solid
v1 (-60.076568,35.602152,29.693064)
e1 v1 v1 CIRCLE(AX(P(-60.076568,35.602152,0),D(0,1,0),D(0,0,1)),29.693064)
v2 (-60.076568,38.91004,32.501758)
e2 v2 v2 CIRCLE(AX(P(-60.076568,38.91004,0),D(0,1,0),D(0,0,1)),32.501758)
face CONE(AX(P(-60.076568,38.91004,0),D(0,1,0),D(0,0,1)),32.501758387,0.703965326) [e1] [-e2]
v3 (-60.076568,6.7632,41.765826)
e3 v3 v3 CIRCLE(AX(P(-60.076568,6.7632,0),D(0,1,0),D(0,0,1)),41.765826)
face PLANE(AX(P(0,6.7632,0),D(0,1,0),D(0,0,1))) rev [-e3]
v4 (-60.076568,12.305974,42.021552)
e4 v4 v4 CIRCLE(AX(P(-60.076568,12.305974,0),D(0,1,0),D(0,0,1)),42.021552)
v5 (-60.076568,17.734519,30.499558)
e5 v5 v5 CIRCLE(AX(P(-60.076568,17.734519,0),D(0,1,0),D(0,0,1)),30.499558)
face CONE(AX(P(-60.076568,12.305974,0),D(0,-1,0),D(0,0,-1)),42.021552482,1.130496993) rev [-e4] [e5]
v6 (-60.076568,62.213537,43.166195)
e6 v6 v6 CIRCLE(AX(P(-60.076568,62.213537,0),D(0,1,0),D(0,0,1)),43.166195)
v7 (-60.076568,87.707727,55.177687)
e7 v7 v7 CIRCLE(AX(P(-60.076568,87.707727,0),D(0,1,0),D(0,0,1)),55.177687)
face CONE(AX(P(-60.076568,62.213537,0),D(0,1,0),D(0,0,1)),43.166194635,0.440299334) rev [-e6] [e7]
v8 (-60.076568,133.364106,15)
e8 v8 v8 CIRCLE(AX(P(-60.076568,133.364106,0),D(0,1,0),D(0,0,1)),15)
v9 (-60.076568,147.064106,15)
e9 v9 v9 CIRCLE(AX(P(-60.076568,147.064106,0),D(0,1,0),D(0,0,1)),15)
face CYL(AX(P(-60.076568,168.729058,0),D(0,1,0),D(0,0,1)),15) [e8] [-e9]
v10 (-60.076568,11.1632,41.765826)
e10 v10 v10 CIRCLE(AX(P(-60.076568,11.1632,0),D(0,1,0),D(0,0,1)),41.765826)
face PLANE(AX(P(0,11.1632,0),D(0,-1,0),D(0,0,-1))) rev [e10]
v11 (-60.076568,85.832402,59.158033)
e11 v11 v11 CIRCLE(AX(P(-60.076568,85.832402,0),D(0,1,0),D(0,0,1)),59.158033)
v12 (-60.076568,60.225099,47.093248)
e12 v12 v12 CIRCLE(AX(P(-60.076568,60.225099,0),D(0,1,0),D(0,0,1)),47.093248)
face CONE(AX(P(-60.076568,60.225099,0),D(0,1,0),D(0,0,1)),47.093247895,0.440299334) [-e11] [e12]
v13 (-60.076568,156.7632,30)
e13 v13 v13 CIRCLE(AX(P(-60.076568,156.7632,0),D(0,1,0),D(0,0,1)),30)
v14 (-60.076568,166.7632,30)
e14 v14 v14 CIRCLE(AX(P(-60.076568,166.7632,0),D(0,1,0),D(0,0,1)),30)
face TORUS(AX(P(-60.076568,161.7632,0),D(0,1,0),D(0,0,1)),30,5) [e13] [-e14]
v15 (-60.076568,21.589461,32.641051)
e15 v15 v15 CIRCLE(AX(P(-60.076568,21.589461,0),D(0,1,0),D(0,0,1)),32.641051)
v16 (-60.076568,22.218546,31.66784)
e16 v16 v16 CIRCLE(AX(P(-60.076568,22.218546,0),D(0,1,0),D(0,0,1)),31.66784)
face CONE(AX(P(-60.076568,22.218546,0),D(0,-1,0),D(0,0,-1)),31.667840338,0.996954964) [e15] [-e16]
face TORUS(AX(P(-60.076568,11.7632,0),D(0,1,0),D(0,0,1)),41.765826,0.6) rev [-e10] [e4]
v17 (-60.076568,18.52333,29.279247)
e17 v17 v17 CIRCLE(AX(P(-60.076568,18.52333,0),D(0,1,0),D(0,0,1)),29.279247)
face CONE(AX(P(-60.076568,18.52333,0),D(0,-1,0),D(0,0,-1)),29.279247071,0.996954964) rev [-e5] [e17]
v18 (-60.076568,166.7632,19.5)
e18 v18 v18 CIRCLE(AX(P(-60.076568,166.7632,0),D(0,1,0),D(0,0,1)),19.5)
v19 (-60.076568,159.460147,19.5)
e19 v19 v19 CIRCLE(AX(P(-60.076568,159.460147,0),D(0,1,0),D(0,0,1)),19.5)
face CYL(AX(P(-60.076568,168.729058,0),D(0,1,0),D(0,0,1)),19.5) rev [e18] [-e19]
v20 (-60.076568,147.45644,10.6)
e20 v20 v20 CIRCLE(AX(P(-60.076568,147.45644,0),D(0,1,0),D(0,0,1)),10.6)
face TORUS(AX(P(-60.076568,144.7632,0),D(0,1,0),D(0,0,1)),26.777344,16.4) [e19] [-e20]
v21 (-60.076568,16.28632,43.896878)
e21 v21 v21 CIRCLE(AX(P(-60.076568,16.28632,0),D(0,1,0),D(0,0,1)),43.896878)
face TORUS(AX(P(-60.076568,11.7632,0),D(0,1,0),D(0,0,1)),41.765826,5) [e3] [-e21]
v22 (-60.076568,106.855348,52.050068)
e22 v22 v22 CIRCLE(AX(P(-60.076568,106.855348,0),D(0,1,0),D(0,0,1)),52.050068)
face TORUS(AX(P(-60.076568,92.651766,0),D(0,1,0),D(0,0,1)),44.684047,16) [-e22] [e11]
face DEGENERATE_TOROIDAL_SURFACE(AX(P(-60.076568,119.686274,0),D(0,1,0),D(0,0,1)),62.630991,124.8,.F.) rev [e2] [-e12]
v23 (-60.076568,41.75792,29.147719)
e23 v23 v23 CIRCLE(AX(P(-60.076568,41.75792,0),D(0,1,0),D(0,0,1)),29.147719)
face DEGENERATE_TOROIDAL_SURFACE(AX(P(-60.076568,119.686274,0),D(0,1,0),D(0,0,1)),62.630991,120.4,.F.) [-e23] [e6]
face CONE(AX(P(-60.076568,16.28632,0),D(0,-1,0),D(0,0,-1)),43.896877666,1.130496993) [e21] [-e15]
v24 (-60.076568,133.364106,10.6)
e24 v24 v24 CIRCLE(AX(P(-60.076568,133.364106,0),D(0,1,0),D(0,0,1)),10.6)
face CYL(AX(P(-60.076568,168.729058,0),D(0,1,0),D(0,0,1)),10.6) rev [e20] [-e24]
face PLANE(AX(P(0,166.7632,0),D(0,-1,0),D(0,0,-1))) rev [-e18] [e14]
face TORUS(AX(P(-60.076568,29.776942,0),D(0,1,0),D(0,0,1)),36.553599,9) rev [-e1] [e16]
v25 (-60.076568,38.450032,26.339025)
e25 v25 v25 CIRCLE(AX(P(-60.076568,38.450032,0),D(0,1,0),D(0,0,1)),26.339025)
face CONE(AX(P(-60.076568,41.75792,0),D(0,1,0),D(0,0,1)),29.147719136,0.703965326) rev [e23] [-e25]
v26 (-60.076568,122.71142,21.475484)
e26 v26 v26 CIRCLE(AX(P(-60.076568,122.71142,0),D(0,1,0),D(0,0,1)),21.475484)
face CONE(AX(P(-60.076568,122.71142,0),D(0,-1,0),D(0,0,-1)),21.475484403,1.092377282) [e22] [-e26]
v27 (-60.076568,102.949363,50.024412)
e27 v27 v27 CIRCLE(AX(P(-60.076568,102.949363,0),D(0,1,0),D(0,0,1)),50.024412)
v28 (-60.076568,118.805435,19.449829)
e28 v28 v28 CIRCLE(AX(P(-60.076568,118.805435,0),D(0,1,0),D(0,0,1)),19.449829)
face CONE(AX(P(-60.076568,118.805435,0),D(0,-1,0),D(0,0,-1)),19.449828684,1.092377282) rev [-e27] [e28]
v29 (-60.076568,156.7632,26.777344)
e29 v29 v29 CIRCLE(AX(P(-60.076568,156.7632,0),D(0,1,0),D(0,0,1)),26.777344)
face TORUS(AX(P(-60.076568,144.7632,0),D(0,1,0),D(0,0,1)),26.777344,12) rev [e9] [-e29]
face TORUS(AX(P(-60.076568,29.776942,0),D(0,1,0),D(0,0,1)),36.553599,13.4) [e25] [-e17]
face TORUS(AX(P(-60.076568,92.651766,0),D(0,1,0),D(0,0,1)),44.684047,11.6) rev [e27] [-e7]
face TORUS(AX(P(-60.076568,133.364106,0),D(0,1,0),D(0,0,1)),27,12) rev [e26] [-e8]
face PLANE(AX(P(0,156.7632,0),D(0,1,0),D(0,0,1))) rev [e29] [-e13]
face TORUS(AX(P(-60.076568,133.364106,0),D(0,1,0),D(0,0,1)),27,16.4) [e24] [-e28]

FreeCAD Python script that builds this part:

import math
import FreeCAD as App
import Part
import Sketcher
Q = App.Units.Quantity

doc = App.newDocument("Part")
body = doc.addObject("PartDesign::Body", "Body")

# Sketch on XY plane
sketch1 = body.newObject("Sketcher::SketchObject", "Sketch")
sketch1.AttachmentSupport = (doc.getObject("XY_Plane"), [""])
sketch1.MapMode = "FlatFace"
sketch1.addGeometry(Part.LineSegment(App.Vector(-60.1, 6.8, 0), App.Vector(-60.1, 11.2, 0)), False)
sketch1.addGeometry(Part.LineSegment(App.Vector(-60.1, 11.2, 0), App.Vector(-101.8, 11.2, 0)), False)
sketch1.addGeometry(Part.ArcOfCircle(Part.Circle(App.Vector(-101.8, 11.8, 0), App.Vector(0, 0, 1), 0.6), math.radians(115), math.radians(270)), False)
sketch1.addGeometry(Part.LineSegment(App.Vector(-102.1, 12.3, 0), App.Vector(-90.6, 17.7, 0)), False)
sketch1.addGeometry(Part.LineSegment(App.Vector(-90.6, 17.7, 0), App.Vector(-89.4, 18.5, 0)), False)
sketch1.addGeometry(Part.ArcOfCircle(Part.Circle(App.Vector(-96.6, 29.8, 0), App.Vector(0, 0, 1), 13.4), math.radians(-57), math.radians(40)), False)
sketch1.addGeometry(Part.LineSegment(App.Vector(-86.4, 38.5, 0), App.Vector(-89.2, 41.8, 0)), False)
sketch1.addGeometry(Part.ArcOfCircle(Part.Circle(App.Vector(2.6, 119.7, 0), App.Vector(0, 0, 1), 120.4), math.radians(-151.49), math.radians(-139.67)), False)
sketch1.addGeometry(Part.LineSegment(App.Vector(-103.2, 62.2, 0), App.Vector(-115.3, 87.7, 0)), False)
sketch1.addGeometry(Part.ArcOfCircle(Part.Circle(App.Vector(-104.8, 92.7, 0), App.Vector(0, 0, 1), 11.6), math.radians(117), math.radians(205)), False)
sketch1.addGeometry(Part.LineSegment(App.Vector(-110.1, 102.9, 0), App.Vector(-79.5, 118.8, 0)), False)
sketch1.addGeometry(Part.ArcOfCircle(Part.Circle(App.Vector(-87.1, 133.4, 0), App.Vector(0, 0, 1), 16.4), math.radians(-63), math.radians(0)), False)
sketch1.addGeometry(Part.LineSegment(App.Vector(-70.7, 133.4, 0), App.Vector(-70.7, 147.5, 0)), False)
sketch1.addGeometry(Part.ArcOfCircle(Part.Circle(App.Vector(-86.9, 144.8, 0), App.Vector(0, 0, 1), 16.4), math.radians(9), math.radians(64)), False)
sketch1.addGeometry(Part.LineSegment(App.Vector(-79.6, 159.5, 0), App.Vector(-79.6, 166.8, 0)), False)
sketch1.addGeometry(Part.LineSegment(App.Vector(-79.6, 166.8, 0), App.Vector(-90.1, 166.8, 0)), False)
sketch1.addGeometry(Part.ArcOfCircle(Part.Circle(App.Vector(-90.1, 161.8, 0), App.Vector(0, 0, 1), 5), math.radians(90), math.radians(270)), False)
sketch1.addGeometry(Part.LineSegment(App.Vector(-90.1, 156.8, 0), App.Vector(-86.9, 156.8, 0)), False)
sketch1.addGeometry(Part.ArcOfCircle(Part.Circle(App.Vector(-86.9, 144.8, 0), App.Vector(0, 0, 1), 12), math.radians(11), math.radians(90)), False)
sketch1.addGeometry(Part.LineSegment(App.Vector(-75.1, 147.1, 0), App.Vector(-75.1, 133.4, 0)), False)
sketch1.addGeometry(Part.ArcOfCircle(Part.Circle(App.Vector(-87.1, 133.4, 0), App.Vector(0, 0, 1), 12), math.radians(-63), math.radians(0)), False)
sketch1.addGeometry(Part.LineSegment(App.Vector(-81.6, 122.7, 0), App.Vector(-112.1, 106.9, 0)), False)
sketch1.addGeometry(Part.ArcOfCircle(Part.Circle(App.Vector(-104.8, 92.7, 0), App.Vector(0, 0, 1), 16), math.radians(117), math.radians(205)), False)
sketch1.addGeometry(Part.LineSegment(App.Vector(-119.2, 85.8, 0), App.Vector(-107.2, 60.2, 0)), False)
sketch1.addGeometry(Part.ArcOfCircle(Part.Circle(App.Vector(2.6, 119.7, 0), App.Vector(0, 0, 1), 124.8), math.radians(-151.55), math.radians(-139.67)), False)
sketch1.addGeometry(Part.LineSegment(App.Vector(-92.6, 38.9, 0), App.Vector(-89.8, 35.6, 0)), False)
sketch1.addGeometry(Part.ArcOfCircle(Part.Circle(App.Vector(-96.6, 29.8, 0), App.Vector(0, 0, 1), 9), math.radians(-57), math.radians(40)), False)
sketch1.addGeometry(Part.LineSegment(App.Vector(-91.7, 22.2, 0), App.Vector(-92.7, 21.6, 0)), False)
sketch1.addGeometry(Part.LineSegment(App.Vector(-92.7, 21.6, 0), App.Vector(-104, 16.3, 0)), False)
sketch1.addGeometry(Part.ArcOfCircle(Part.Circle(App.Vector(-101.8, 11.8, 0), App.Vector(0, 0, 1), 5), math.radians(115), math.radians(270)), False)
sketch1.addGeometry(Part.LineSegment(App.Vector(-101.8, 6.8, 0), App.Vector(-60.1, 6.8, 0)), False)
sketch1.addGeometry(Part.LineSegment(App.Vector(-60.1, 166.8, 0), App.Vector(-60.1, 6.8, 0)), True)  # axis
sketch1.addConstraint(Sketcher.Constraint("Coincident", 0, 2, 1, 1))
sketch1.addConstraint(Sketcher.Constraint("Tangent", 1, 2, 2, 2))
sketch1.addConstraint(Sketcher.Constraint("Tangent", 2, 1, 3, 1))
sketch1.addConstraint(Sketcher.Constraint("Coincident", 3, 2, 4, 1))
sketch1.addConstraint(Sketcher.Constraint("Tangent", 4, 2, 5, 1))
sketch1.addConstraint(Sketcher.Constraint("Tangent", 5, 2, 6, 1))
sketch1.addConstraint(Sketcher.Constraint("Tangent", 6, 2, 7, 2))
sketch1.addConstraint(Sketcher.Constraint("Coincident", 7, 1, 8, 1))
sketch1.addConstraint(Sketcher.Constraint("Tangent", 8, 2, 9, 2))
sketch1.addConstraint(Sketcher.Constraint("Tangent", 9, 1, 10, 1))
sketch1.addConstraint(Sketcher.Constraint("Tangent", 10, 2, 11, 1))
sketch1.addConstraint(Sketcher.Constraint("Tangent", 11, 2, 12, 1))
sketch1.addConstraint(Sketcher.Constraint("Coincident", 12, 2, 13, 1))
sketch1.addConstraint(Sketcher.Constraint("Coincident", 13, 2, 14, 1))
sketch1.addConstraint(Sketcher.Constraint("Coincident", 14, 2, 15, 1))
sketch1.addConstraint(Sketcher.Constraint("Tangent", 15, 2, 16, 1))
sketch1.addConstraint(Sketcher.Constraint("Tangent", 16, 2, 17, 1))
sketch1.addConstraint(Sketcher.Constraint("Tangent", 17, 2, 18, 2))
sketch1.addConstraint(Sketcher.Constraint("Coincident", 18, 1, 19, 1))
sketch1.addConstraint(Sketcher.Constraint("Tangent", 19, 2, 20, 2))
sketch1.addConstraint(Sketcher.Constraint("Tangent", 20, 1, 21, 1))
sketch1.addConstraint(Sketcher.Constraint("Tangent", 21, 2, 22, 1))
sketch1.addConstraint(Sketcher.Constraint("Tangent", 22, 2, 23, 1))
sketch1.addConstraint(Sketcher.Constraint("Coincident", 23, 2, 24, 1))
sketch1.addConstraint(Sketcher.Constraint("Tangent", 24, 2, 25, 1))
sketch1.addConstraint(Sketcher.Constraint("Tangent", 25, 2, 26, 2))
sketch1.addConstraint(Sketcher.Constraint("Tangent", 26, 1, 27, 1))
sketch1.addConstraint(Sketcher.Constraint("Coincident", 27, 2, 28, 1))
sketch1.addConstraint(Sketcher.Constraint("Tangent", 28, 2, 29, 1))
sketch1.addConstraint(Sketcher.Constraint("Tangent", 29, 2, 30, 1))
sketch1.addConstraint(Sketcher.Constraint("Coincident", 30, 2, 0, 1))
sketch1.addConstraint(Sketcher.Constraint("Vertical", 0))
sketch1.addConstraint(Sketcher.Constraint("Horizontal", 1))
sketch1.addConstraint(Sketcher.Constraint("Vertical", 12))
sketch1.addConstraint(Sketcher.Constraint("Vertical", 14))
sketch1.addConstraint(Sketcher.Constraint("Horizontal", 15))
sketch1.addConstraint(Sketcher.Constraint("Horizontal", 17))
sketch1.addConstraint(Sketcher.Constraint("Vertical", 19))
sketch1.addConstraint(Sketcher.Constraint("Horizontal", 30))
sketch1.addConstraint(Sketcher.Constraint("Vertical", 31))
sketch1.addConstraint(Sketcher.Constraint("Coincident", 18, 3, 13, 3))
sketch1.addConstraint(Sketcher.Constraint("Coincident", 20, 3, 11, 3))
sketch1.addConstraint(Sketcher.Constraint("Coincident", 22, 3, 9, 3))
sketch1.addConstraint(Sketcher.Constraint("Coincident", 24, 3, 7, 3))
sketch1.addConstraint(Sketcher.Constraint("Coincident", 26, 3, 5, 3))
sketch1.addConstraint(Sketcher.Constraint("Coincident", 29, 3, 2, 3))
sketch1.addConstraint(Sketcher.Constraint("Coincident", 31, 2, 30, 2))
sketch1.addConstraint(Sketcher.Constraint("Equal", 11, 13))
sketch1.addConstraint(Sketcher.Constraint("Equal", 18, 20))
sketch1.addConstraint(Sketcher.Constraint("Equal", 16, 29))
sketch1.addConstraint(Sketcher.Constraint("Perpendicular", 3, 8))
sketch1.addConstraint(Sketcher.Constraint("Parallel", 10, 21))
sketch1.addConstraint(Sketcher.Constraint("Parallel", 8, 23))
sketch1.addConstraint(Sketcher.Constraint("Parallel", 6, 25))
sketch1.addConstraint(Sketcher.Constraint("Parallel", 4, 27))
sketch1.addConstraint(Sketcher.Constraint("Perpendicular", 23, 28))
sketch1.addConstraint(Sketcher.Constraint("Horizontal", 15, 2, 31, 1))
sketch1.addConstraint(Sketcher.Constraint("Radius", 16, Q("5 mm")))
sketch1.addConstraint(Sketcher.Constraint("Radius", 18, Q("12 mm")))
sketch1.addConstraint(Sketcher.Constraint("Radius", 22, Q("16 mm")))
sketch1.addConstraint(Sketcher.Constraint("Radius", 26, Q("9 mm")))
sketch1.addConstraint(Sketcher.Constraint("Radius", 2, Q("0.6 mm")))
sketch1.addConstraint(Sketcher.Constraint("Radius", 5, Q("13.4 mm")))
sketch1.addConstraint(Sketcher.Constraint("Radius", 7, Q("120.4 mm")))
sketch1.addConstraint(Sketcher.Constraint("Radius", 9, Q("11.6 mm")))
sketch1.addConstraint(Sketcher.Constraint("DistanceY", 31, 2, 31, 1, Q("160 mm")))
sketch1.addConstraint(Sketcher.Constraint("DistanceX", 15, 2, 15, 1, Q("10.5 mm")))
sketch1.addConstraint(Sketcher.Constraint("DistanceY", 19, 2, 19, 1, Q("13.7 mm")))
sketch1.addConstraint(Sketcher.Constraint("DistanceX", 16, 3, 11, 3, Q("3 mm")))
sketch1.addConstraint(Sketcher.Constraint("DistanceX", 18, 1, 31, 1, Q("15 mm")))
sketch1.addConstraint(Sketcher.Constraint("DistanceY", -1, 1, 2, 3, Q("11.7632 mm")))
sketch1.addConstraint(Sketcher.Constraint("DistanceX", 22, 2, -1, 1, Q("119.234601 mm")))
sketch1.addConstraint(Sketcher.Constraint("DistanceY", -1, 1, 22, 2, Q("85.832402 mm")))
sketch1.addConstraint(Sketcher.Constraint("DistanceY", -1, 1, 23, 2, Q("60.225099 mm")))
sketch1.addConstraint(Sketcher.Constraint("DistanceX", 5, 3, 11, 3, Q("9.553599 mm")))
sketch1.addConstraint(Sketcher.Constraint("DistanceY", 4, 2, 5, 2, Q("19.926702 mm")))
sketch1.addConstraint(Sketcher.Constraint("DistanceY", 3, 2, 6, 2, Q("24.023401 mm")))
sketch1.addConstraint(Sketcher.Constraint("Distance", 4, Q("1.453059 mm")))
sketch1.addConstraint(Sketcher.Constraint("Distance", 8, Q("28.18208 mm")))
sketch1.addConstraint(Sketcher.Constraint("Distance", 23, Q("28.307119 mm")))
sketch1.addConstraint(Sketcher.Constraint("Distance", 27, Q("1.158829 mm")))
sketch1.addConstraint(Sketcher.Constraint("DistanceX", 17, 1, 17, 2, Q("3.222656 mm")))
revolution = body.newObject("PartDesign::Revolution", "Revolution")
revolution.Profile = sketch1
revolution.ReferenceAxis = (sketch1, ["Axis0"])
revolution.Angle = 360

doc.recompute()
